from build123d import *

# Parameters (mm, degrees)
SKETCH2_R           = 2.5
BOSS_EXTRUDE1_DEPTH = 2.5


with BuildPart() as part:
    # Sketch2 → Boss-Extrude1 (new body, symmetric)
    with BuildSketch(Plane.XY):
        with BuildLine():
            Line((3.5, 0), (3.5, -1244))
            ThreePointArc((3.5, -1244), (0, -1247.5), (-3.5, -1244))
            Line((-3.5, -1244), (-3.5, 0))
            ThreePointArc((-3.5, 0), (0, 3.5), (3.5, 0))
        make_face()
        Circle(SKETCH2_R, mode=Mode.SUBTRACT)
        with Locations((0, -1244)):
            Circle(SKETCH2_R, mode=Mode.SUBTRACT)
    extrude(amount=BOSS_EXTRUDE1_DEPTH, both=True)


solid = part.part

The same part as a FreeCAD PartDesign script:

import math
import FreeCAD as App
import Part
import Sketcher
from FreeCAD import Vector

doc = App.newDocument("Part")
body = doc.addObject("PartDesign::Body", "Body")

# Sketch on XY plane
sketch1 = doc.addObject("Sketcher::SketchObject", "Sketch")
body.addObject(sketch1)
sketch1.AttachmentSupport = (doc.XY_Plane, [""])
sketch1.MapMode = "FlatFace"
sketch1.addGeometry([
    Part.LineSegment(Vector(3.5, -1244, 0), Vector(3.5, 0, 0)),  # 0
    Part.ArcOfCircle(Part.Circle(Vector(0, 0, 0), Vector(0, 0, 1), 3.5), math.radians(0), math.radians(180)),  # 1
    Part.LineSegment(Vector(-3.5, 0, 0), Vector(-3.5, -1244, 0)),  # 2
    Part.ArcOfCircle(Part.Circle(Vector(0, -1244, 0), Vector(0, 0, 1), 3.5), math.radians(180), math.radians(360)),  # 3
    Part.Circle(Vector(0, -1244, 0), Vector(0, 0, 1), 2.5),  # 4
    Part.Circle(Vector(0, 0, 0), Vector(0, 0, 1), 2.5),  # 5
], False)
sketch1.addConstraint([
    Sketcher.Constraint("Tangent", 0, 2, 1, 1),
    Sketcher.Constraint("Tangent", 1, 2, 2, 1),
    Sketcher.Constraint("Tangent", 2, 2, 3, 1),
    Sketcher.Constraint("Tangent", 3, 2, 0, 1),
    Sketcher.Constraint("Vertical", 0),
    Sketcher.Constraint("Vertical", 2),
    Sketcher.Constraint("Coincident", 1, 3, -1, 1),
    Sketcher.Constraint("Coincident", 5, 3, -1, 1),
    Sketcher.Constraint("Coincident", 4, 3, 3, 3),
    Sketcher.Constraint("Equal", 4, 5),
    Sketcher.Constraint("Diameter", 4, 5.0),
    Sketcher.Constraint("Radius", 1, 3.5),
    Sketcher.Constraint("DistanceY", 0, 1, 0, 2, 1244.0),
])
pad1 = doc.addObject("PartDesign::Pad", "Pad")
body.addObject(pad1)
pad1.Profile = sketch1
pad1.Length = 5
pad1.Midplane = True

doc.recompute()
